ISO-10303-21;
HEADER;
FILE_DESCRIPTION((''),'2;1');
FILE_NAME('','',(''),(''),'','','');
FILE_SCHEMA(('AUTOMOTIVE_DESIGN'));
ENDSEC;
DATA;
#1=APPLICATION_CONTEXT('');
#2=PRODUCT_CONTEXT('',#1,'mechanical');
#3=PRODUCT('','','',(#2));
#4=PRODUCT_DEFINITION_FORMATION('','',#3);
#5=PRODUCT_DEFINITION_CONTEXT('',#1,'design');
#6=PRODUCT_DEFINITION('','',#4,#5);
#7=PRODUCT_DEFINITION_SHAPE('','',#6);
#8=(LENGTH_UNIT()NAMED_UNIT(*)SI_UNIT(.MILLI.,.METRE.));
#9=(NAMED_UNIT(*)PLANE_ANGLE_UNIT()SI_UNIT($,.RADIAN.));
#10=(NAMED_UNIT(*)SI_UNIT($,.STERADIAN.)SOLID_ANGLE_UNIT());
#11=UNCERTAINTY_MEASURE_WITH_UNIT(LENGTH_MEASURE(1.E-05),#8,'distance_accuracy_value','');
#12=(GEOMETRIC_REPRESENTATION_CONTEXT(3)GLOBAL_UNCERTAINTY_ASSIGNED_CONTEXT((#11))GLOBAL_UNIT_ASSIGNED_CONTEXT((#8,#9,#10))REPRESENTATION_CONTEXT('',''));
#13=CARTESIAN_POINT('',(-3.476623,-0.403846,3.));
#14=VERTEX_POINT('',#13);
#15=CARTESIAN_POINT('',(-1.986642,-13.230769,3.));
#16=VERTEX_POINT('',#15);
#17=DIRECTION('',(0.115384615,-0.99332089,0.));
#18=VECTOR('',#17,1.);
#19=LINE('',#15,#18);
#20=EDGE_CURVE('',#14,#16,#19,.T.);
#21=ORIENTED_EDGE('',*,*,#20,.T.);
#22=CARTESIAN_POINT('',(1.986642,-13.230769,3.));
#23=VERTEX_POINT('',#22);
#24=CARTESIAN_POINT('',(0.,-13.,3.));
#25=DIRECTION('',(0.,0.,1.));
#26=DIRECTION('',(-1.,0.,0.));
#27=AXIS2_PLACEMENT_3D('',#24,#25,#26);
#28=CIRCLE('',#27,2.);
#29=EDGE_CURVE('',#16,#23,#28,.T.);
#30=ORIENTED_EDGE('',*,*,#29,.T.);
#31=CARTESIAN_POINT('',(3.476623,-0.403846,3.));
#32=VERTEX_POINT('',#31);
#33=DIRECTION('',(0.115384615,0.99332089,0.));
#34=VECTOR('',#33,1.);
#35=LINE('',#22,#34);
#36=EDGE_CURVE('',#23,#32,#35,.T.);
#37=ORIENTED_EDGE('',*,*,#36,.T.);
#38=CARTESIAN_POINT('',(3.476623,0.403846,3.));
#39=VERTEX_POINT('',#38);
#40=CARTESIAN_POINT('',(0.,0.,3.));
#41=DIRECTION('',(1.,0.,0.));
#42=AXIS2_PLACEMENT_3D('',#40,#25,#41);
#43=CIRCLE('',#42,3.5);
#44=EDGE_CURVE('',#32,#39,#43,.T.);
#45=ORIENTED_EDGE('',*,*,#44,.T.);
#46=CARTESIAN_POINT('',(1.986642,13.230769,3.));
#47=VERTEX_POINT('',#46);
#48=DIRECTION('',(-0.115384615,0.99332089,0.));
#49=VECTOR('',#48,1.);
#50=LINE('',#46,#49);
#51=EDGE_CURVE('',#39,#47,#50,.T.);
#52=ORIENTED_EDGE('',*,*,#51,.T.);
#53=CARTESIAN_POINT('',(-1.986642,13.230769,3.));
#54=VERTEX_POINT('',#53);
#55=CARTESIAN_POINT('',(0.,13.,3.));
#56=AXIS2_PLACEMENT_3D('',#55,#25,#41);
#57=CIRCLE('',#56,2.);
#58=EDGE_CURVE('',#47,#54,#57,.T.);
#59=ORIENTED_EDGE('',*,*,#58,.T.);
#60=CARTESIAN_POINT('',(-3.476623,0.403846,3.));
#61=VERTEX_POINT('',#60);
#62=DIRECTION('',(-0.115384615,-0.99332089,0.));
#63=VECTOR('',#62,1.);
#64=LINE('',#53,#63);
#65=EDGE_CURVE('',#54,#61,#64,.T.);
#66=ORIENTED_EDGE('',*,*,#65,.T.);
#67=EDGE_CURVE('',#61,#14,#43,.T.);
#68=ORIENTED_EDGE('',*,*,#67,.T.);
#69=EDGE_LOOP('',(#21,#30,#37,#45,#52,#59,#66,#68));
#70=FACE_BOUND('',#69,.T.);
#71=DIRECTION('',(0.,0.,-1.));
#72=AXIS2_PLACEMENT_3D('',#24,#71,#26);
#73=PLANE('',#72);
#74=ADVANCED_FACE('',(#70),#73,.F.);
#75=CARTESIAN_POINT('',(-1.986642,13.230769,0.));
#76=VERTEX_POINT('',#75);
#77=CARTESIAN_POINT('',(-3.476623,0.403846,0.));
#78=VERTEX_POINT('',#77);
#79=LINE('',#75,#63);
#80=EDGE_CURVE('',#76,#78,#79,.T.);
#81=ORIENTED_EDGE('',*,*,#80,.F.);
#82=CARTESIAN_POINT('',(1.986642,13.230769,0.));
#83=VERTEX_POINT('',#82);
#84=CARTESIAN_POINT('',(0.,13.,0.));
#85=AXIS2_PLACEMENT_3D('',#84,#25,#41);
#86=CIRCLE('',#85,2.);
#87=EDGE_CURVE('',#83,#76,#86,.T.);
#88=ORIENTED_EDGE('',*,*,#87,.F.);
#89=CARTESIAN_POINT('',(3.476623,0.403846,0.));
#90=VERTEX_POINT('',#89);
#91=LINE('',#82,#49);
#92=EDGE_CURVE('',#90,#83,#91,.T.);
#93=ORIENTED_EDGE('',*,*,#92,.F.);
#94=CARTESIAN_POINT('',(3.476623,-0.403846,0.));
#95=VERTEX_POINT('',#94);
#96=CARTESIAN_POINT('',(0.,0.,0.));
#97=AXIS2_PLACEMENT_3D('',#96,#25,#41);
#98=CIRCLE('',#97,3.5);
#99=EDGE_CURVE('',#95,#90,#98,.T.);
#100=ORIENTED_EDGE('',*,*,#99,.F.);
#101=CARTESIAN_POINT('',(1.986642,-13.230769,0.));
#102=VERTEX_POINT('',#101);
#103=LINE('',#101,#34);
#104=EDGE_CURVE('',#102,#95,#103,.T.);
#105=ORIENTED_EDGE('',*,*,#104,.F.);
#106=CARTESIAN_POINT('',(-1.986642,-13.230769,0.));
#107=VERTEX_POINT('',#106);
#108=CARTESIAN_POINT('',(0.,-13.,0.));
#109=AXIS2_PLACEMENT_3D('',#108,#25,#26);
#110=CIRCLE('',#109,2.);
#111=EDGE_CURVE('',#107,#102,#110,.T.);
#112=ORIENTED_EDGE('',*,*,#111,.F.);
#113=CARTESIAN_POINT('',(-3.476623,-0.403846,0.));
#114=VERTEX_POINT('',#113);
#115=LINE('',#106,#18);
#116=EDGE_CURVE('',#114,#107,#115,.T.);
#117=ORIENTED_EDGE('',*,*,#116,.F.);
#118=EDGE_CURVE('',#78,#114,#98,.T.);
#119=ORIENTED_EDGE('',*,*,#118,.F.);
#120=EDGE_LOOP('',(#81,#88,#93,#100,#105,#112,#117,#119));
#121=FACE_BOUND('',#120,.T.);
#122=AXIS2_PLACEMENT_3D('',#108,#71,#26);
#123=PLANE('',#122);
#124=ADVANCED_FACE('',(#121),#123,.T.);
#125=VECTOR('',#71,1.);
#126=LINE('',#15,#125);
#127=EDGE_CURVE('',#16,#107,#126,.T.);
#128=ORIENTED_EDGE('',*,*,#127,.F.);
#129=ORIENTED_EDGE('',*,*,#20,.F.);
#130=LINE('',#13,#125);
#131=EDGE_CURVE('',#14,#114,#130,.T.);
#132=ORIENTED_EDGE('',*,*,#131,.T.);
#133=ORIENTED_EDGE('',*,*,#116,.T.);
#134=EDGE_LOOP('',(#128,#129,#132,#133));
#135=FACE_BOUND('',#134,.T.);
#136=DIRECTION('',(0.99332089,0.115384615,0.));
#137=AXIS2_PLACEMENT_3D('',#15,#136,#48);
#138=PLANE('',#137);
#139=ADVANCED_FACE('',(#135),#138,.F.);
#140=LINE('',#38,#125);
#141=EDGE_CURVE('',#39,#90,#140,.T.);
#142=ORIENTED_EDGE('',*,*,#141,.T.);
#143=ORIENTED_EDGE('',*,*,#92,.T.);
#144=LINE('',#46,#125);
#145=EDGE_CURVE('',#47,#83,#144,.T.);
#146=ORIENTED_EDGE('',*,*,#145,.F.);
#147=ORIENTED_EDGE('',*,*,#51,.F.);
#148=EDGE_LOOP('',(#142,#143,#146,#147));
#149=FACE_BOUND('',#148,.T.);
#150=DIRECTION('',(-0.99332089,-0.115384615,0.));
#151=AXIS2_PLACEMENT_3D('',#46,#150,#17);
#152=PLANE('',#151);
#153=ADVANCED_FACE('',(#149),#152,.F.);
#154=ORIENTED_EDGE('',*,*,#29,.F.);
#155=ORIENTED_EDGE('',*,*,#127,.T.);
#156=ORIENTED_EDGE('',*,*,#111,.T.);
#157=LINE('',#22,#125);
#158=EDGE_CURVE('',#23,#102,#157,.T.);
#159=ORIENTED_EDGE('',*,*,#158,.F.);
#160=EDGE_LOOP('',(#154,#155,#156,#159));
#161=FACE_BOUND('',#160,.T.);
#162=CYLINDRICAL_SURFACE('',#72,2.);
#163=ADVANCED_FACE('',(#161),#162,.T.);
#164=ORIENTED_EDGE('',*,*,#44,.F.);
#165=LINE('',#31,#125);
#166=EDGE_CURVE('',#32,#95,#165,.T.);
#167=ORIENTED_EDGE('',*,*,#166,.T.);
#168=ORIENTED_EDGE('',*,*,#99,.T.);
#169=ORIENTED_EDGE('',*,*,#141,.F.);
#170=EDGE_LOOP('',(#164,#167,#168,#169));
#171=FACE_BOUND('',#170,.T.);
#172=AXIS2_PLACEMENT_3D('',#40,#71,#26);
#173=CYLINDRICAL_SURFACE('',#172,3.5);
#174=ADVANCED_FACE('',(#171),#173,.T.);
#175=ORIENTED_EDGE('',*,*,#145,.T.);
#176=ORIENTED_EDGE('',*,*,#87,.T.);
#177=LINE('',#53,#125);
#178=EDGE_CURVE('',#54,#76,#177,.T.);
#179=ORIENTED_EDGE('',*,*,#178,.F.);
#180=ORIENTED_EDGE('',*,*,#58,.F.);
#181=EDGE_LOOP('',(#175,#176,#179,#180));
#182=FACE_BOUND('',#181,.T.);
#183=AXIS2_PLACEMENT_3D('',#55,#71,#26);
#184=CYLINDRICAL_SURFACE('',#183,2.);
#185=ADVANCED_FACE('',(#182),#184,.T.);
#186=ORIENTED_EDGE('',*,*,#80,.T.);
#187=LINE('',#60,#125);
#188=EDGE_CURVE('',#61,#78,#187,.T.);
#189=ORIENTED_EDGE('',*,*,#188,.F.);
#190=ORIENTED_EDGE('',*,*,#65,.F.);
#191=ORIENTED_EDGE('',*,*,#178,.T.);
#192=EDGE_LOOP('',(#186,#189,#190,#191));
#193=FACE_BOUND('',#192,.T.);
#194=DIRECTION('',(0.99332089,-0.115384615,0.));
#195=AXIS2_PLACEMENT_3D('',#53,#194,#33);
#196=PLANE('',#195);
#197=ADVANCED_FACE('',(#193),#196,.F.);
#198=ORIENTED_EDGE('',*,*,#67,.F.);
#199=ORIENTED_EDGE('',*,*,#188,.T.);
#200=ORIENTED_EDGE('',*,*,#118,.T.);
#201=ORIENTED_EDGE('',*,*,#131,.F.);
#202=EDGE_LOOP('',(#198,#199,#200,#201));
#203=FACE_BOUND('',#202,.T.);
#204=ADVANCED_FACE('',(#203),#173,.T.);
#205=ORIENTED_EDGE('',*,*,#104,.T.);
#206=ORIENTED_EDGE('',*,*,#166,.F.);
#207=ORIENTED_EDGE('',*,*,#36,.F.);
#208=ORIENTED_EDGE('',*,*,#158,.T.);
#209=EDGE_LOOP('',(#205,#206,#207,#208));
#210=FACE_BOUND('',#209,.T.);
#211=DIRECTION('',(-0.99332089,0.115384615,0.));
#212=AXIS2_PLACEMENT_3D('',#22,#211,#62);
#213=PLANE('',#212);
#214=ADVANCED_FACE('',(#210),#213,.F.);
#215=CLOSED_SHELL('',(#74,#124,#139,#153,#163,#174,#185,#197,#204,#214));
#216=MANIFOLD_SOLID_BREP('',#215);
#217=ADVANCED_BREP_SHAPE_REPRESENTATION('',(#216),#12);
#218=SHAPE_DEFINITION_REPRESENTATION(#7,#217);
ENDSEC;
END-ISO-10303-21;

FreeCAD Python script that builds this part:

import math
import FreeCAD as App
import Part
import Sketcher
from FreeCAD import Vector
Q = App.Units.Quantity

doc = App.newDocument("Part")
body = doc.addObject("PartDesign::Body", "Body")

sketch1 = body.newObject("Sketcher::SketchObject", "Sketch")
sketch1.AttachmentSupport = (doc.getObject("XY_Plane"), [""])
sketch1.MapMode = "FlatFace"
sketch1.addGeometry([
    Part.LineSegment(Vector(-1.986642, 13.230769, 0), Vector(-3.476623, 0.403846, 0)),
    Part.ArcOfCircle(Part.Circle(Vector(0, 0, 0), Vector(0, 0, 1), 3.5), math.radians(173.37419), math.radians(186.62581)),
    Part.LineSegment(Vector(-3.476623, -0.403846, 0), Vector(-1.986642, -13.230769, 0)),
    Part.ArcOfCircle(Part.Circle(Vector(0, -13, 0), Vector(0, 0, 1), 2), math.radians(-173.37419), math.radians(-6.62581)),
    Part.LineSegment(Vector(1.986642, -13.230769, 0), Vector(3.476623, -0.403846, 0)),
    Part.ArcOfCircle(Part.Circle(Vector(0, 0, 0), Vector(0, 0, 1), 3.5), math.radians(-6.62581), math.radians(6.62581)),
    Part.LineSegment(Vector(3.476623, 0.403846, 0), Vector(1.986642, 13.230769, 0)),
    Part.ArcOfCircle(Part.Circle(Vector(0, 13, 0), Vector(0, 0, 1), 2), math.radians(6.62581), math.radians(173.37419)),
], False)
sketch1.addConstraint([
    Sketcher.Constraint("Tangent", 0, 2, 1, 1),
    Sketcher.Constraint("Tangent", 1, 2, 2, 1),
    Sketcher.Constraint("Tangent", 2, 2, 3, 1),
    Sketcher.Constraint("Tangent", 3, 2, 4, 1),
    Sketcher.Constraint("Tangent", 4, 2, 5, 1),
    Sketcher.Constraint("Tangent", 5, 2, 6, 1),
    Sketcher.Constraint("Tangent", 6, 2, 7, 1),
    Sketcher.Constraint("Tangent", 7, 2, 0, 1),
    Sketcher.Constraint("Coincident", 1, 3, -1, 1),
    Sketcher.Constraint("Coincident", 5, 3, -1, 1),
    Sketcher.Constraint("Equal", 1, 5),
    Sketcher.Constraint("Equal", 3, 7),
    Sketcher.Constraint("Symmetric", 3, 3, 7, 3, -1, 1),
    Sketcher.Constraint("PointOnObject", 3, 3, -2),
    Sketcher.Constraint("Radius", 3, Q("2 mm")),
    Sketcher.Constraint("Radius", 1, Q("3.5 mm")),
    Sketcher.Constraint("DistanceY", 3, 3, -1, 1, Q("13 mm")),
])
pad1 = body.newObject("PartDesign::Pad", "Pad")
pad1.Profile = sketch1
pad1.Length = 3

doc.recompute()
